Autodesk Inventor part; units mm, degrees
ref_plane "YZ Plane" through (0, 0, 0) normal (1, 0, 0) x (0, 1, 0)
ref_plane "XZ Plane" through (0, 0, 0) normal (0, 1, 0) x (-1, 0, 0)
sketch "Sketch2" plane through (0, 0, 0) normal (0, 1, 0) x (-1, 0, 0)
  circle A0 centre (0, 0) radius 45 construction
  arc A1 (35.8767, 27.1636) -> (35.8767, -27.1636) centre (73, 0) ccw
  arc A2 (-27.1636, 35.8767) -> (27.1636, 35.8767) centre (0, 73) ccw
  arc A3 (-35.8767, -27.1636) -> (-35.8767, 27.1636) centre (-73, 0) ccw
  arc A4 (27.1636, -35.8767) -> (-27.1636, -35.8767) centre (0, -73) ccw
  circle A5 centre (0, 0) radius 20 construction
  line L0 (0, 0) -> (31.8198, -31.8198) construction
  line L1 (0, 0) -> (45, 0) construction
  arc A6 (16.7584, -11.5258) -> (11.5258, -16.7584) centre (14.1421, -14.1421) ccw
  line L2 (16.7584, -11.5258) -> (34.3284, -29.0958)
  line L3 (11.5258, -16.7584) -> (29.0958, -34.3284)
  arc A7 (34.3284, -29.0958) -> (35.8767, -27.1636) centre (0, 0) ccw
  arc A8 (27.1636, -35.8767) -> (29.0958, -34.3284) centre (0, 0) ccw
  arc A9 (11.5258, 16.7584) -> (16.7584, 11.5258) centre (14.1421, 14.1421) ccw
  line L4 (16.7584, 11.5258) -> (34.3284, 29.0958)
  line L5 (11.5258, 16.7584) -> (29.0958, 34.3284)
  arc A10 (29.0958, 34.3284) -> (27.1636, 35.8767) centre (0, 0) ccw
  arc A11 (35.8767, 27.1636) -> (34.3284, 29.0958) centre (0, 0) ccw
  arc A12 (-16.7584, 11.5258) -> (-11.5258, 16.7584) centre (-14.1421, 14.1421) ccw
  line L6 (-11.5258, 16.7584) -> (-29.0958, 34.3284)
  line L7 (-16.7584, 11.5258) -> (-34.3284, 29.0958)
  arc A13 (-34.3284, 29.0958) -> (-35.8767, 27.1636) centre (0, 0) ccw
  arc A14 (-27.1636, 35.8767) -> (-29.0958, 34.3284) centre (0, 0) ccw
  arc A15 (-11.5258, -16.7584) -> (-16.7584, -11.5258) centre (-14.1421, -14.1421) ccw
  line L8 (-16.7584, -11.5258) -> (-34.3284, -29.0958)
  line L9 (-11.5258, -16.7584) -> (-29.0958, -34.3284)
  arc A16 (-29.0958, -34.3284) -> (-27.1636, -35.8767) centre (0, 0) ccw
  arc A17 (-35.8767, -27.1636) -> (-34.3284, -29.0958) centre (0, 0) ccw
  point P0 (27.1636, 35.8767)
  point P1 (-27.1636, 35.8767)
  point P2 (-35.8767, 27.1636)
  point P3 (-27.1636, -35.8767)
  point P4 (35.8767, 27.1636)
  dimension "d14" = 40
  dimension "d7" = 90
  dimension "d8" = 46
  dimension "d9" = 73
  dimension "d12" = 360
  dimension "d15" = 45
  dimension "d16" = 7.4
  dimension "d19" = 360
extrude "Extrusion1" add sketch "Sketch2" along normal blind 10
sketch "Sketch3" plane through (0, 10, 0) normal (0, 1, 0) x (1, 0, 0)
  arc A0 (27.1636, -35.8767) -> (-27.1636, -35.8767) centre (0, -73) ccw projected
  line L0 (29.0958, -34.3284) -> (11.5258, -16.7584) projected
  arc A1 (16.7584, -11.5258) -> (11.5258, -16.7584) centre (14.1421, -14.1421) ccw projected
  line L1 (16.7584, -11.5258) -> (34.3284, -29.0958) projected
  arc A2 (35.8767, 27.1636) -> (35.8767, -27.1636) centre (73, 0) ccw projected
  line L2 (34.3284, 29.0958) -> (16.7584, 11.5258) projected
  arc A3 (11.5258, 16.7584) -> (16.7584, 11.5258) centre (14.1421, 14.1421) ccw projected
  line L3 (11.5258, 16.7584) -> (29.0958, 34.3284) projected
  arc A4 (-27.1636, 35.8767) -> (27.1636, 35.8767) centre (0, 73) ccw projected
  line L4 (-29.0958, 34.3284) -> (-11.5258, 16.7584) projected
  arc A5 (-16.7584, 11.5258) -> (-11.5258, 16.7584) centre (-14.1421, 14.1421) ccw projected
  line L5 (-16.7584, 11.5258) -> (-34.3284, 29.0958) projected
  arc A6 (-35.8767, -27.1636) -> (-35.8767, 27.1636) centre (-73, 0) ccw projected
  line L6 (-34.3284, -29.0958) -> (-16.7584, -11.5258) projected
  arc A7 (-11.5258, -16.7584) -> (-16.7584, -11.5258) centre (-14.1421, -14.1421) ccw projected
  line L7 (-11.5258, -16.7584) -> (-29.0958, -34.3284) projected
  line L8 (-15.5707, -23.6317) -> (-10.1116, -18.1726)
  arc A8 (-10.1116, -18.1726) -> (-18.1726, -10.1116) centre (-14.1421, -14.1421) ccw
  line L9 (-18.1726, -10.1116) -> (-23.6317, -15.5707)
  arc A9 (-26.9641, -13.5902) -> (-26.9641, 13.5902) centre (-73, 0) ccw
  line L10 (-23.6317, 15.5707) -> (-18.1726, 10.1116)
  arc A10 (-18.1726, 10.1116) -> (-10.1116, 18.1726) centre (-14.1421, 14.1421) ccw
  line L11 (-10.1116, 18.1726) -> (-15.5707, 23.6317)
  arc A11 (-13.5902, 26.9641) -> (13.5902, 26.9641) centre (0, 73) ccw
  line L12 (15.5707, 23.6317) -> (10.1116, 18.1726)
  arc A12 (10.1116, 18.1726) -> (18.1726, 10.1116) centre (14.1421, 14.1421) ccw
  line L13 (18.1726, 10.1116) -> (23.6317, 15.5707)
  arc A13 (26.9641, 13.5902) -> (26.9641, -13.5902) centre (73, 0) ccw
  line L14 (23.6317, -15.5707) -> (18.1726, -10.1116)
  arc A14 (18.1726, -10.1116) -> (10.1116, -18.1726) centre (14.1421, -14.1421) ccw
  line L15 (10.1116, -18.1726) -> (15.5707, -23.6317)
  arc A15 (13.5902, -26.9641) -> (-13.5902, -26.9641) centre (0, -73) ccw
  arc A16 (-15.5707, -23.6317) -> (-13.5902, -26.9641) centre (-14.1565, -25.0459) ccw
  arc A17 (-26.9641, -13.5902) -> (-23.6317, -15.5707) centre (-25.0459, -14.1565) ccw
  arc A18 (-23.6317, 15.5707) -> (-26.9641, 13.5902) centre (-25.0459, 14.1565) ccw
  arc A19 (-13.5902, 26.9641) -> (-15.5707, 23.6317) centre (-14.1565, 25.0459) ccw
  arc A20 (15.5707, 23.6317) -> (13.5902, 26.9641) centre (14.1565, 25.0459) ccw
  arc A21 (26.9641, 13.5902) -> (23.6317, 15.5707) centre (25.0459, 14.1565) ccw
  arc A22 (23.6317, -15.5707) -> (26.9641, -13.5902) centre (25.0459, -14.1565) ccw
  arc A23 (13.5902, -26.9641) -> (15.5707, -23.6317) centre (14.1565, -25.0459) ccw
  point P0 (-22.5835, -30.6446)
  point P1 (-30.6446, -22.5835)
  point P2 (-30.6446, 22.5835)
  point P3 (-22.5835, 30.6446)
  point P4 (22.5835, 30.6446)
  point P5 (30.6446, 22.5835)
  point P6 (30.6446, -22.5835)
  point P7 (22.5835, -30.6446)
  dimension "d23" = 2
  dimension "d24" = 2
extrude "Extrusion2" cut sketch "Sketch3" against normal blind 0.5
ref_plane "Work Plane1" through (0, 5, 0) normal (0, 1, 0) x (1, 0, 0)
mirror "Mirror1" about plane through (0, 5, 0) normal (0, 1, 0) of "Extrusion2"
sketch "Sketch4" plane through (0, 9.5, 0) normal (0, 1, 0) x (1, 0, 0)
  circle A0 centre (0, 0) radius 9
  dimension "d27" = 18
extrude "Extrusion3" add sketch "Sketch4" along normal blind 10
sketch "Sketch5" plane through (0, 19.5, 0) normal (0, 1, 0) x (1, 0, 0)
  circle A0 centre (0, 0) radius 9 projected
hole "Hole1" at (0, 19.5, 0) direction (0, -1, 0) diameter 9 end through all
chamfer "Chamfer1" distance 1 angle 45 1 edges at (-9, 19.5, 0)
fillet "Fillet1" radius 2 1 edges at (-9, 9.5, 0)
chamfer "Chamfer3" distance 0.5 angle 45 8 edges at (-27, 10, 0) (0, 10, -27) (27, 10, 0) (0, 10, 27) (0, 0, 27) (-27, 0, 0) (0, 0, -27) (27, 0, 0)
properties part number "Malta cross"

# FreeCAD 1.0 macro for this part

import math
import FreeCAD as App
import Part
import Sketcher
from FreeCAD import Vector
Q = App.Units.Quantity


def edges_at(feature, points):
    """Names of the edges that pass closest to the given points."""
    edges = feature.Shape.Edges
    near = lambda p: min(range(len(edges)), key=lambda i: edges[i].distToShape(Part.Vertex(*p))[0])
    return sorted({f"Edge{near(p) + 1}" for p in points})

doc = App.newDocument("Part")
params = doc.addObject("Spreadsheet::Sheet", "Params")
for row, (alias, value) in enumerate([
    ("sketch1_radius", "46 mm"),
    ("sketch1_radius2", "3.7 mm"),
    ("pad1_length", "10 mm"),
    ("sketch2_radius", "2 mm"),
    ("sketch2_radius2", "48 mm"),
    ("sketch2_radius3", "5.7 mm"),
    ("pocket1_length", "0.5 mm"),
    ("sketch3_diameter", "18 mm"),
    ("pad2_length", "10 mm"),
    ("sketch4_diameter", "9 mm"),
    ("hole_diameter", "9 mm"),
    ("chamfer_size", "1 mm"),
    ("fillet_radius", "2 mm"),
    ("chamfer2_size", "0.5 mm"),
], start=1):
    params.set(f"A{row}", alias)
    params.set(f"B{row}", "=" + value)
    params.setAlias(f"B{row}", alias)

body = doc.addObject("PartDesign::Body", "Body")

# Sketch on XZ plane
sketch1 = body.newObject("Sketcher::SketchObject", "Sketch")
sketch1.AttachmentSupport = (doc.getObject("XZ_Plane"), [""])
sketch1.MapMode = "FlatFace"
sketch1.addGeometry([
    Part.ArcOfCircle(Part.Circle(Vector(-73, 0, 0), Vector(0, 0, 1), 46), math.radians(-36), math.radians(36)),  # 0
    Part.ArcOfCircle(Part.Circle(Vector(0.1, -0.1, 0), Vector(0, 0, 1), 45.1), math.radians(139.72), math.radians(142.87)),  # 1
    Part.LineSegment(Vector(-34.3, 29.1, 0), Vector(-16.8, 11.5, 0)),  # 2
    Part.ArcOfCircle(Part.Circle(Vector(-14.1, 14.1, 0), Vector(0, 0, 1), 3.7), math.radians(-135), math.radians(45)),  # 3
    Part.LineSegment(Vector(-11.5, 16.8, 0), Vector(-29.1, 34.3, 0)),  # 4
    Part.ArcOfCircle(Part.Circle(Vector(-0.1, 0.1, 0), Vector(0, 0, 1), 44.9), math.radians(127.13), math.radians(130.29)),  # 5
    Part.ArcOfCircle(Part.Circle(Vector(0, 73, 0), Vector(0, 0, 1), 46), math.radians(-126), math.radians(-54)),  # 6
    Part.ArcOfCircle(Part.Circle(Vector(-0.1, -0.1, 0), Vector(0, 0, 1), 45.1), math.radians(49.72), math.radians(52.87)),  # 7
    Part.LineSegment(Vector(29.1, 34.3, 0), Vector(11.5, 16.8, 0)),  # 8
    Part.ArcOfCircle(Part.Circle(Vector(14.1, 14.1, 0), Vector(0, 0, 1), 3.7), math.radians(135), math.radians(315)),  # 9
    Part.LineSegment(Vector(16.8, 11.5, 0), Vector(34.3, 29.1, 0)),  # 10
    Part.ArcOfCircle(Part.Circle(Vector(0.1, 0.1, 0), Vector(0, 0, 1), 44.9), math.radians(37.13), math.radians(40.29)),  # 11
    Part.ArcOfCircle(Part.Circle(Vector(73, 0, 0), Vector(0, 0, 1), 46), math.radians(144), math.radians(216)),  # 12
    Part.ArcOfCircle(Part.Circle(Vector(-0.1, 0.1, 0), Vector(0, 0, 1), 45.1), math.radians(-40.28), math.radians(-37.13)),  # 13
    Part.LineSegment(Vector(34.3, -29.1, 0), Vector(16.8, -11.5, 0)),  # 14
    Part.ArcOfCircle(Part.Circle(Vector(14.1, -14.1, 0), Vector(0, 0, 1), 3.7), math.radians(45), math.radians(225)),  # 15
    Part.LineSegment(Vector(11.5, -16.8, 0), Vector(29.1, -34.3, 0)),  # 16
    Part.ArcOfCircle(Part.Circle(Vector(0.1, -0.1, 0), Vector(0, 0, 1), 44.9), math.radians(-52.87), math.radians(-49.71)),  # 17
    Part.ArcOfCircle(Part.Circle(Vector(0, -73, 0), Vector(0, 0, 1), 46), math.radians(54), math.radians(126)),  # 18
    Part.ArcOfCircle(Part.Circle(Vector(0.1, 0.1, 0), Vector(0, 0, 1), 45.1), math.radians(-130.28), math.radians(-127.13)),  # 19
    Part.LineSegment(Vector(-29.1, -34.3, 0), Vector(-11.5, -16.8, 0)),  # 20
    Part.ArcOfCircle(Part.Circle(Vector(-14.1, -14.1, 0), Vector(0, 0, 1), 3.7), math.radians(-45), math.radians(135)),  # 21
    Part.LineSegment(Vector(-16.8, -11.5, 0), Vector(-34.3, -29.1, 0)),  # 22
    Part.ArcOfCircle(Part.Circle(Vector(-0.1, -0.1, 0), Vector(0, 0, 1), 44.9), math.radians(-142.87), math.radians(-139.71)),  # 23
], False)
sketch1.addConstraint([
    Sketcher.Constraint("Coincident", 0, 2, 1, 2),
    Sketcher.Constraint("Coincident", 1, 1, 2, 1),
    Sketcher.Constraint("Tangent", 2, 2, 3, 1),
    Sketcher.Constraint("Tangent", 3, 2, 4, 1),
    Sketcher.Constraint("Coincident", 4, 2, 5, 2),
    Sketcher.Constraint("Coincident", 5, 1, 6, 1),
    Sketcher.Constraint("Coincident", 6, 2, 7, 2),
    Sketcher.Constraint("Coincident", 7, 1, 8, 1),
    Sketcher.Constraint("Tangent", 8, 2, 9, 1),
    Sketcher.Constraint("Tangent", 9, 2, 10, 1),
    Sketcher.Constraint("Coincident", 10, 2, 11, 2),
    Sketcher.Constraint("Coincident", 11, 1, 12, 1),
    Sketcher.Constraint("Coincident", 12, 2, 13, 2),
    Sketcher.Constraint("Coincident", 13, 1, 14, 1),
    Sketcher.Constraint("Tangent", 14, 2, 15, 1),
    Sketcher.Constraint("Tangent", 15, 2, 16, 1),
    Sketcher.Constraint("Coincident", 16, 2, 17, 2),
    Sketcher.Constraint("Coincident", 17, 1, 18, 1),
    Sketcher.Constraint("Coincident", 18, 2, 19, 2),
    Sketcher.Constraint("Coincident", 19, 1, 20, 1),
    Sketcher.Constraint("Tangent", 20, 2, 21, 1),
    Sketcher.Constraint("Tangent", 21, 2, 22, 1),
    Sketcher.Constraint("Coincident", 22, 2, 23, 2),
    Sketcher.Constraint("Coincident", 23, 1, 0, 1),
    Sketcher.Constraint("Equal", 0, 6),
    Sketcher.Constraint("Equal", 1, 7),
    Sketcher.Constraint("Equal", 3, 9),
    Sketcher.Constraint("Equal", 5, 11),
    Sketcher.Constraint("Equal", 6, 12),
    Sketcher.Constraint("Equal", 7, 13),
    Sketcher.Constraint("Equal", 9, 15),
    Sketcher.Constraint("Equal", 11, 17),
    Sketcher.Constraint("Equal", 12, 18),
    Sketcher.Constraint("Equal", 13, 19),
    Sketcher.Constraint("Equal", 15, 21),
    Sketcher.Constraint("Equal", 17, 23),
    Sketcher.Constraint("Symmetric", 0, 3, 12, 3, -1, 1),
    Sketcher.Constraint("Symmetric", 1, 3, 13, 3, -1, 1),
    Sketcher.Constraint("Symmetric", 3, 3, 15, 3, -1, 1),
    Sketcher.Constraint("Symmetric", 5, 3, 17, 3, -1, 1),
    Sketcher.Constraint("Symmetric", 6, 3, 18, 3, -1, 1),
    Sketcher.Constraint("Symmetric", 7, 3, 19, 3, -1, 1),
    Sketcher.Constraint("Symmetric", 9, 3, 21, 3, -1, 1),
    Sketcher.Constraint("Symmetric", 11, 3, 23, 3, -1, 1),
    Sketcher.Constraint("Symmetric", 3, 3, 9, 3, -2),
    Sketcher.Constraint("Symmetric", 5, 1, 6, 2, -2),
    Sketcher.Constraint("Symmetric", 4, 2, 7, 1, -2),
    Sketcher.Constraint("Symmetric", 1, 1, 10, 2, -2),
    Sketcher.Constraint("PointOnObject", 0, 3, -1),
    Sketcher.Constraint("Parallel", 2, 4),
    Sketcher.Constraint("Perpendicular", 4, 8),
    Sketcher.Constraint("Perpendicular", 10, 14),
    Sketcher.Constraint("Parallel", 14, 16),
    Sketcher.Constraint("Perpendicular", 16, 20),
    Sketcher.Constraint("Parallel", 20, 22),
    Sketcher.Constraint("Equal", 2, 4),
    Sketcher.Constraint("Radius", 0, Q("46 mm")),
    Sketcher.Constraint("Radius", 3, Q("3.7 mm")),
    Sketcher.Constraint("DistanceX", 0, 3, -1, 1, Q("73 mm")),
    Sketcher.Constraint("DistanceY", -1, 1, 6, 3, Q("73 mm")),
    Sketcher.Constraint("Radius", 1, Q("45.086 mm")),
    Sketcher.Constraint("Radius", 5, Q("44.9143 mm")),
    Sketcher.Constraint("DistanceX", 3, 3, 1, 3, Q("14.21 mm")),
    Sketcher.Constraint("DistanceY", 7, 3, 3, 3, Q("14.21 mm")),
    Sketcher.Constraint("DistanceX", 4, 2, 3, 2, Q("17.57 mm")),
    Sketcher.Constraint("DistanceX", -1, 1, 1, 3, Q("0.068 mm")),
    Sketcher.Constraint("DistanceY", 1, 3, -1, 1, Q("0.053 mm")),
    Sketcher.Constraint("DistanceX", 11, 3, 9, 3, Q("14.076 mm")),
])
sketch1.setExpression("Constraints[56]", "Params.sketch1_radius")
sketch1.setExpression("Constraints[57]", "Params.sketch1_radius2")
pad1 = body.newObject("PartDesign::Pad", "Pad")
pad1.Profile = sketch1
pad1.setExpression("Length", "Params.pad1_length")
pad1.Reversed = True

# Sketch on XZ plane
sketch2 = body.newObject("Sketcher::SketchObject", "Sketch001")
sketch2.AttachmentSupport = (doc.getObject("XZ_Plane"), [""])
sketch2.MapMode = "FlatFace"
sketch2.AttachmentOffset = App.Placement(Vector(0, 0, -10), App.Rotation())
sketch2.addGeometry([
    Part.LineSegment(Vector(-10.1, 18.2, 0), Vector(-15.6, 23.6, 0)),  # 0
    Part.ArcOfCircle(Part.Circle(Vector(-14.2, 25, 0), Vector(0, 0, 1), 2), math.radians(74), math.radians(225)),  # 1
    Part.ArcOfCircle(Part.Circle(Vector(0, 73, 0), Vector(0, 0, 1), 48), math.radians(-106), math.radians(-74)),  # 2
    Part.ArcOfCircle(Part.Circle(Vector(14.2, 25, 0), Vector(0, 0, 1), 2), math.radians(-45), math.radians(106)),  # 3
    Part.LineSegment(Vector(15.6, 23.6, 0), Vector(10.1, 18.2, 0)),  # 4
    Part.ArcOfCircle(Part.Circle(Vector(14.1, 14.1, 0), Vector(0, 0, 1), 5.7), math.radians(135), math.radians(315)),  # 5
    Part.LineSegment(Vector(18.2, 10.1, 0), Vector(23.6, 15.6, 0)),  # 6
    Part.ArcOfCircle(Part.Circle(Vector(25, 14.2, 0), Vector(0, 0, 1), 2), math.radians(-16), math.radians(135)),  # 7
    Part.ArcOfCircle(Part.Circle(Vector(73, 0, 0), Vector(0, 0, 1), 48), math.radians(164), math.radians(196)),  # 8
    Part.ArcOfCircle(Part.Circle(Vector(25, -14.2, 0), Vector(0, 0, 1), 2), math.radians(-135), math.radians(16)),  # 9
    Part.LineSegment(Vector(23.6, -15.6, 0), Vector(18.2, -10.1, 0)),  # 10
    Part.ArcOfCircle(Part.Circle(Vector(14.1, -14.1, 0), Vector(0, 0, 1), 5.7), math.radians(45), math.radians(225)),  # 11
    Part.LineSegment(Vector(10.1, -18.2, 0), Vector(15.6, -23.6, 0)),  # 12
    Part.ArcOfCircle(Part.Circle(Vector(14.2, -25, 0), Vector(0, 0, 1), 2), math.radians(-106), math.radians(45)),  # 13
    Part.ArcOfCircle(Part.Circle(Vector(0, -73, 0), Vector(0, 0, 1), 48), math.radians(74), math.radians(106)),  # 14
    Part.ArcOfCircle(Part.Circle(Vector(-14.2, -25, 0), Vector(0, 0, 1), 2), math.radians(135), math.radians(286)),  # 15
    Part.LineSegment(Vector(-15.6, -23.6, 0), Vector(-10.1, -18.2, 0)),  # 16
    Part.ArcOfCircle(Part.Circle(Vector(-14.1, -14.1, 0), Vector(0, 0, 1), 5.7), math.radians(-45), math.radians(135)),  # 17
    Part.LineSegment(Vector(-18.2, -10.1, 0), Vector(-23.6, -15.6, 0)),  # 18
    Part.ArcOfCircle(Part.Circle(Vector(-25, -14.2, 0), Vector(0, 0, 1), 2), math.radians(164), math.radians(315)),  # 19
    Part.ArcOfCircle(Part.Circle(Vector(-73, 0, 0), Vector(0, 0, 1), 48), math.radians(-16), math.radians(16)),  # 20
    Part.ArcOfCircle(Part.Circle(Vector(-25, 14.2, 0), Vector(0, 0, 1), 2), math.radians(45), math.radians(196)),  # 21
    Part.LineSegment(Vector(-23.6, 15.6, 0), Vector(-18.2, 10.1, 0)),  # 22
    Part.ArcOfCircle(Part.Circle(Vector(-14.1, 14.1, 0), Vector(0, 0, 1), 5.7), math.radians(-135), math.radians(45)),  # 23
], False)
sketch2.addConstraint([
    Sketcher.Constraint("Tangent", 0, 2, 1, 2),
    Sketcher.Constraint("Tangent", 1, 1, 2, 1),
    Sketcher.Constraint("Tangent", 2, 2, 3, 2),
    Sketcher.Constraint("Tangent", 3, 1, 4, 1),
    Sketcher.Constraint("Tangent", 4, 2, 5, 1),
    Sketcher.Constraint("Tangent", 5, 2, 6, 1),
    Sketcher.Constraint("Tangent", 6, 2, 7, 2),
    Sketcher.Constraint("Tangent", 7, 1, 8, 1),
    Sketcher.Constraint("Tangent", 8, 2, 9, 2),
    Sketcher.Constraint("Tangent", 9, 1, 10, 1),
    Sketcher.Constraint("Tangent", 10, 2, 11, 1),
    Sketcher.Constraint("Tangent", 11, 2, 12, 1),
    Sketcher.Constraint("Tangent", 12, 2, 13, 2),
    Sketcher.Constraint("Tangent", 13, 1, 14, 1),
    Sketcher.Constraint("Tangent", 14, 2, 15, 2),
    Sketcher.Constraint("Tangent", 15, 1, 16, 1),
    Sketcher.Constraint("Tangent", 16, 2, 17, 1),
    Sketcher.Constraint("Tangent", 17, 2, 18, 1),
    Sketcher.Constraint("Tangent", 18, 2, 19, 2),
    Sketcher.Constraint("Tangent", 19, 1, 20, 1),
    Sketcher.Constraint("Tangent", 20, 2, 21, 2),
    Sketcher.Constraint("Tangent", 21, 1, 22, 1),
    Sketcher.Constraint("Tangent", 22, 2, 23, 1),
    Sketcher.Constraint("Tangent", 23, 2, 0, 1),
    Sketcher.Constraint("Equal", 1, 3),
    Sketcher.Constraint("Equal", 3, 7),
    Sketcher.Constraint("Equal", 2, 8),
    Sketcher.Constraint("Equal", 7, 9),
    Sketcher.Constraint("Equal", 5, 11),
    Sketcher.Constraint("Equal", 9, 13),
    Sketcher.Constraint("Equal", 8, 14),
    Sketcher.Constraint("Equal", 13, 15),
    Sketcher.Constraint("Equal", 11, 17),
    Sketcher.Constraint("Equal", 15, 19),
    Sketcher.Constraint("Equal", 14, 20),
    Sketcher.Constraint("Equal", 19, 21),
    Sketcher.Constraint("Equal", 17, 23),
    Sketcher.Constraint("Symmetric", 1, 3, 13, 3, -1, 1),
    Sketcher.Constraint("Symmetric", 3, 3, 15, 3, -1, 1),
    Sketcher.Constraint("Symmetric", 5, 3, 17, 3, -1, 1),
    Sketcher.Constraint("Symmetric", 7, 3, 19, 3, -1, 1),
    Sketcher.Constraint("Symmetric", 9, 3, 21, 3, -1, 1),
    Sketcher.Constraint("Symmetric", 11, 3, 23, 3, -1, 1),
    Sketcher.Constraint("Symmetric", 1, 3, 3, 3, -2),
    Sketcher.Constraint("Symmetric", 11, 3, 17, 3, -2),
    Sketcher.Constraint("Symmetric", 9, 3, 19, 3, -2),
    Sketcher.Constraint("Perpendicular", 0, 4),
    Sketcher.Constraint("Parallel", 4, 6),
    Sketcher.Constraint("Equal", 4, 6),
    Sketcher.Constraint("Radius", 1, Q("2 mm")),
    Sketcher.Constraint("Radius", 2, Q("48 mm")),
    Sketcher.Constraint("Radius", 5, Q("5.7 mm")),
    Sketcher.Constraint("DistanceY", -1, 1, 2, 3, Q("73 mm")),
    Sketcher.Constraint("DistanceX", -1, 1, 8, 3, Q("73 mm")),
    Sketcher.Constraint("DistanceY", 5, 2, 3, 1, Q("13.52 mm")),
])
sketch2.setExpression("Constraints[49]", "Params.sketch2_radius")
sketch2.setExpression("Constraints[50]", "Params.sketch2_radius2")
sketch2.setExpression("Constraints[51]", "Params.sketch2_radius3")
pocket1 = body.newObject("PartDesign::Pocket", "Pocket")
pocket1.Profile = sketch2
pocket1.setExpression("Length", "Params.pocket1_length")
pocket1.Reversed = True
doc.recompute()

datumplane = body.newObject("PartDesign::Plane", "DatumPlane")
datumplane.AttachmentSupport = (doc.getObject("XZ_Plane"), [""])
datumplane.MapMode = "FlatFace"
datumplane.AttachmentOffset = App.Placement(Vector(0, 0, -5), App.Rotation())
mirrored = body.newObject("PartDesign::Mirrored", "Mirrored")
mirrored.Originals = [pocket1]
mirrored.MirrorPlane = (datumplane, [""])
body.Tip = mirrored

# Sketch on XZ plane
sketch3 = body.newObject("Sketcher::SketchObject", "Sketch002")
sketch3.AttachmentSupport = (doc.getObject("XZ_Plane"), [""])
sketch3.MapMode = "FlatFace"
sketch3.AttachmentOffset = App.Placement(Vector(0, 0, -9.5), App.Rotation())
sketch3.addGeometry(Part.Circle(Vector(0, 0, 0), Vector(0, 0, 1), 9), False)
sketch3.addConstraint([
    Sketcher.Constraint("Coincident", 0, 3, -1, 1),
    Sketcher.Constraint("Diameter", 0, Q("18 mm")),
])
sketch3.setExpression("Constraints[1]", "Params.sketch3_diameter")
pad2 = body.newObject("PartDesign::Pad", "Pad001")
pad2.Profile = sketch3
pad2.setExpression("Length", "Params.pad2_length")
pad2.Reversed = True

# Sketch on XZ plane
sketch4 = body.newObject("Sketcher::SketchObject", "Sketch003")
sketch4.AttachmentSupport = (doc.getObject("XZ_Plane"), [""])
sketch4.MapMode = "FlatFace"
sketch4.AttachmentOffset = App.Placement(Vector(0, 0, -19.5), App.Rotation())
sketch4.addGeometry(Part.Circle(Vector(0, 0, 0), Vector(0, 0, 1), 4.5), False)
sketch4.addConstraint([
    Sketcher.Constraint("Coincident", 0, 3, -1, 1),
    Sketcher.Constraint("Diameter", 0, Q("9 mm")),
])
sketch4.setExpression("Constraints[1]", "Params.sketch4_diameter")
doc.recompute()
hole = body.newObject("PartDesign::Hole", "Hole")
hole.Profile = sketch4
hole.ThreadType = "None"
hole.setExpression("Diameter", "Params.hole_diameter")
hole.DepthType = "ThroughAll"
hole.Reversed = True
doc.recompute()

chamfer = body.newObject("PartDesign::Chamfer", "Chamfer")
chamfer.Base = (hole, edges_at(hole, [(-9, 19.5, 0)]))
chamfer.setExpression("Size", "Params.chamfer_size")
doc.recompute()

fillet = body.newObject("PartDesign::Fillet", "Fillet")
fillet.Base = (chamfer, edges_at(chamfer, [(-9, 9.5, 0)]))
fillet.setExpression("Radius", "Params.fillet_radius")
doc.recompute()

chamfer2 = body.newObject("PartDesign::Chamfer", "Chamfer001")
chamfer2.Base = (fillet, edges_at(fillet, [
    (-27, 10, 0),
    (0, 10, -27),
    (27, 10, 0),
    (0, 10, 27),
    (0, 0, 27),
    (-27, 0, 0),
    (0, 0, -27),
    (27, 0, 0),
]))
chamfer2.setExpression("Size", "Params.chamfer2_size")

doc.recompute()
